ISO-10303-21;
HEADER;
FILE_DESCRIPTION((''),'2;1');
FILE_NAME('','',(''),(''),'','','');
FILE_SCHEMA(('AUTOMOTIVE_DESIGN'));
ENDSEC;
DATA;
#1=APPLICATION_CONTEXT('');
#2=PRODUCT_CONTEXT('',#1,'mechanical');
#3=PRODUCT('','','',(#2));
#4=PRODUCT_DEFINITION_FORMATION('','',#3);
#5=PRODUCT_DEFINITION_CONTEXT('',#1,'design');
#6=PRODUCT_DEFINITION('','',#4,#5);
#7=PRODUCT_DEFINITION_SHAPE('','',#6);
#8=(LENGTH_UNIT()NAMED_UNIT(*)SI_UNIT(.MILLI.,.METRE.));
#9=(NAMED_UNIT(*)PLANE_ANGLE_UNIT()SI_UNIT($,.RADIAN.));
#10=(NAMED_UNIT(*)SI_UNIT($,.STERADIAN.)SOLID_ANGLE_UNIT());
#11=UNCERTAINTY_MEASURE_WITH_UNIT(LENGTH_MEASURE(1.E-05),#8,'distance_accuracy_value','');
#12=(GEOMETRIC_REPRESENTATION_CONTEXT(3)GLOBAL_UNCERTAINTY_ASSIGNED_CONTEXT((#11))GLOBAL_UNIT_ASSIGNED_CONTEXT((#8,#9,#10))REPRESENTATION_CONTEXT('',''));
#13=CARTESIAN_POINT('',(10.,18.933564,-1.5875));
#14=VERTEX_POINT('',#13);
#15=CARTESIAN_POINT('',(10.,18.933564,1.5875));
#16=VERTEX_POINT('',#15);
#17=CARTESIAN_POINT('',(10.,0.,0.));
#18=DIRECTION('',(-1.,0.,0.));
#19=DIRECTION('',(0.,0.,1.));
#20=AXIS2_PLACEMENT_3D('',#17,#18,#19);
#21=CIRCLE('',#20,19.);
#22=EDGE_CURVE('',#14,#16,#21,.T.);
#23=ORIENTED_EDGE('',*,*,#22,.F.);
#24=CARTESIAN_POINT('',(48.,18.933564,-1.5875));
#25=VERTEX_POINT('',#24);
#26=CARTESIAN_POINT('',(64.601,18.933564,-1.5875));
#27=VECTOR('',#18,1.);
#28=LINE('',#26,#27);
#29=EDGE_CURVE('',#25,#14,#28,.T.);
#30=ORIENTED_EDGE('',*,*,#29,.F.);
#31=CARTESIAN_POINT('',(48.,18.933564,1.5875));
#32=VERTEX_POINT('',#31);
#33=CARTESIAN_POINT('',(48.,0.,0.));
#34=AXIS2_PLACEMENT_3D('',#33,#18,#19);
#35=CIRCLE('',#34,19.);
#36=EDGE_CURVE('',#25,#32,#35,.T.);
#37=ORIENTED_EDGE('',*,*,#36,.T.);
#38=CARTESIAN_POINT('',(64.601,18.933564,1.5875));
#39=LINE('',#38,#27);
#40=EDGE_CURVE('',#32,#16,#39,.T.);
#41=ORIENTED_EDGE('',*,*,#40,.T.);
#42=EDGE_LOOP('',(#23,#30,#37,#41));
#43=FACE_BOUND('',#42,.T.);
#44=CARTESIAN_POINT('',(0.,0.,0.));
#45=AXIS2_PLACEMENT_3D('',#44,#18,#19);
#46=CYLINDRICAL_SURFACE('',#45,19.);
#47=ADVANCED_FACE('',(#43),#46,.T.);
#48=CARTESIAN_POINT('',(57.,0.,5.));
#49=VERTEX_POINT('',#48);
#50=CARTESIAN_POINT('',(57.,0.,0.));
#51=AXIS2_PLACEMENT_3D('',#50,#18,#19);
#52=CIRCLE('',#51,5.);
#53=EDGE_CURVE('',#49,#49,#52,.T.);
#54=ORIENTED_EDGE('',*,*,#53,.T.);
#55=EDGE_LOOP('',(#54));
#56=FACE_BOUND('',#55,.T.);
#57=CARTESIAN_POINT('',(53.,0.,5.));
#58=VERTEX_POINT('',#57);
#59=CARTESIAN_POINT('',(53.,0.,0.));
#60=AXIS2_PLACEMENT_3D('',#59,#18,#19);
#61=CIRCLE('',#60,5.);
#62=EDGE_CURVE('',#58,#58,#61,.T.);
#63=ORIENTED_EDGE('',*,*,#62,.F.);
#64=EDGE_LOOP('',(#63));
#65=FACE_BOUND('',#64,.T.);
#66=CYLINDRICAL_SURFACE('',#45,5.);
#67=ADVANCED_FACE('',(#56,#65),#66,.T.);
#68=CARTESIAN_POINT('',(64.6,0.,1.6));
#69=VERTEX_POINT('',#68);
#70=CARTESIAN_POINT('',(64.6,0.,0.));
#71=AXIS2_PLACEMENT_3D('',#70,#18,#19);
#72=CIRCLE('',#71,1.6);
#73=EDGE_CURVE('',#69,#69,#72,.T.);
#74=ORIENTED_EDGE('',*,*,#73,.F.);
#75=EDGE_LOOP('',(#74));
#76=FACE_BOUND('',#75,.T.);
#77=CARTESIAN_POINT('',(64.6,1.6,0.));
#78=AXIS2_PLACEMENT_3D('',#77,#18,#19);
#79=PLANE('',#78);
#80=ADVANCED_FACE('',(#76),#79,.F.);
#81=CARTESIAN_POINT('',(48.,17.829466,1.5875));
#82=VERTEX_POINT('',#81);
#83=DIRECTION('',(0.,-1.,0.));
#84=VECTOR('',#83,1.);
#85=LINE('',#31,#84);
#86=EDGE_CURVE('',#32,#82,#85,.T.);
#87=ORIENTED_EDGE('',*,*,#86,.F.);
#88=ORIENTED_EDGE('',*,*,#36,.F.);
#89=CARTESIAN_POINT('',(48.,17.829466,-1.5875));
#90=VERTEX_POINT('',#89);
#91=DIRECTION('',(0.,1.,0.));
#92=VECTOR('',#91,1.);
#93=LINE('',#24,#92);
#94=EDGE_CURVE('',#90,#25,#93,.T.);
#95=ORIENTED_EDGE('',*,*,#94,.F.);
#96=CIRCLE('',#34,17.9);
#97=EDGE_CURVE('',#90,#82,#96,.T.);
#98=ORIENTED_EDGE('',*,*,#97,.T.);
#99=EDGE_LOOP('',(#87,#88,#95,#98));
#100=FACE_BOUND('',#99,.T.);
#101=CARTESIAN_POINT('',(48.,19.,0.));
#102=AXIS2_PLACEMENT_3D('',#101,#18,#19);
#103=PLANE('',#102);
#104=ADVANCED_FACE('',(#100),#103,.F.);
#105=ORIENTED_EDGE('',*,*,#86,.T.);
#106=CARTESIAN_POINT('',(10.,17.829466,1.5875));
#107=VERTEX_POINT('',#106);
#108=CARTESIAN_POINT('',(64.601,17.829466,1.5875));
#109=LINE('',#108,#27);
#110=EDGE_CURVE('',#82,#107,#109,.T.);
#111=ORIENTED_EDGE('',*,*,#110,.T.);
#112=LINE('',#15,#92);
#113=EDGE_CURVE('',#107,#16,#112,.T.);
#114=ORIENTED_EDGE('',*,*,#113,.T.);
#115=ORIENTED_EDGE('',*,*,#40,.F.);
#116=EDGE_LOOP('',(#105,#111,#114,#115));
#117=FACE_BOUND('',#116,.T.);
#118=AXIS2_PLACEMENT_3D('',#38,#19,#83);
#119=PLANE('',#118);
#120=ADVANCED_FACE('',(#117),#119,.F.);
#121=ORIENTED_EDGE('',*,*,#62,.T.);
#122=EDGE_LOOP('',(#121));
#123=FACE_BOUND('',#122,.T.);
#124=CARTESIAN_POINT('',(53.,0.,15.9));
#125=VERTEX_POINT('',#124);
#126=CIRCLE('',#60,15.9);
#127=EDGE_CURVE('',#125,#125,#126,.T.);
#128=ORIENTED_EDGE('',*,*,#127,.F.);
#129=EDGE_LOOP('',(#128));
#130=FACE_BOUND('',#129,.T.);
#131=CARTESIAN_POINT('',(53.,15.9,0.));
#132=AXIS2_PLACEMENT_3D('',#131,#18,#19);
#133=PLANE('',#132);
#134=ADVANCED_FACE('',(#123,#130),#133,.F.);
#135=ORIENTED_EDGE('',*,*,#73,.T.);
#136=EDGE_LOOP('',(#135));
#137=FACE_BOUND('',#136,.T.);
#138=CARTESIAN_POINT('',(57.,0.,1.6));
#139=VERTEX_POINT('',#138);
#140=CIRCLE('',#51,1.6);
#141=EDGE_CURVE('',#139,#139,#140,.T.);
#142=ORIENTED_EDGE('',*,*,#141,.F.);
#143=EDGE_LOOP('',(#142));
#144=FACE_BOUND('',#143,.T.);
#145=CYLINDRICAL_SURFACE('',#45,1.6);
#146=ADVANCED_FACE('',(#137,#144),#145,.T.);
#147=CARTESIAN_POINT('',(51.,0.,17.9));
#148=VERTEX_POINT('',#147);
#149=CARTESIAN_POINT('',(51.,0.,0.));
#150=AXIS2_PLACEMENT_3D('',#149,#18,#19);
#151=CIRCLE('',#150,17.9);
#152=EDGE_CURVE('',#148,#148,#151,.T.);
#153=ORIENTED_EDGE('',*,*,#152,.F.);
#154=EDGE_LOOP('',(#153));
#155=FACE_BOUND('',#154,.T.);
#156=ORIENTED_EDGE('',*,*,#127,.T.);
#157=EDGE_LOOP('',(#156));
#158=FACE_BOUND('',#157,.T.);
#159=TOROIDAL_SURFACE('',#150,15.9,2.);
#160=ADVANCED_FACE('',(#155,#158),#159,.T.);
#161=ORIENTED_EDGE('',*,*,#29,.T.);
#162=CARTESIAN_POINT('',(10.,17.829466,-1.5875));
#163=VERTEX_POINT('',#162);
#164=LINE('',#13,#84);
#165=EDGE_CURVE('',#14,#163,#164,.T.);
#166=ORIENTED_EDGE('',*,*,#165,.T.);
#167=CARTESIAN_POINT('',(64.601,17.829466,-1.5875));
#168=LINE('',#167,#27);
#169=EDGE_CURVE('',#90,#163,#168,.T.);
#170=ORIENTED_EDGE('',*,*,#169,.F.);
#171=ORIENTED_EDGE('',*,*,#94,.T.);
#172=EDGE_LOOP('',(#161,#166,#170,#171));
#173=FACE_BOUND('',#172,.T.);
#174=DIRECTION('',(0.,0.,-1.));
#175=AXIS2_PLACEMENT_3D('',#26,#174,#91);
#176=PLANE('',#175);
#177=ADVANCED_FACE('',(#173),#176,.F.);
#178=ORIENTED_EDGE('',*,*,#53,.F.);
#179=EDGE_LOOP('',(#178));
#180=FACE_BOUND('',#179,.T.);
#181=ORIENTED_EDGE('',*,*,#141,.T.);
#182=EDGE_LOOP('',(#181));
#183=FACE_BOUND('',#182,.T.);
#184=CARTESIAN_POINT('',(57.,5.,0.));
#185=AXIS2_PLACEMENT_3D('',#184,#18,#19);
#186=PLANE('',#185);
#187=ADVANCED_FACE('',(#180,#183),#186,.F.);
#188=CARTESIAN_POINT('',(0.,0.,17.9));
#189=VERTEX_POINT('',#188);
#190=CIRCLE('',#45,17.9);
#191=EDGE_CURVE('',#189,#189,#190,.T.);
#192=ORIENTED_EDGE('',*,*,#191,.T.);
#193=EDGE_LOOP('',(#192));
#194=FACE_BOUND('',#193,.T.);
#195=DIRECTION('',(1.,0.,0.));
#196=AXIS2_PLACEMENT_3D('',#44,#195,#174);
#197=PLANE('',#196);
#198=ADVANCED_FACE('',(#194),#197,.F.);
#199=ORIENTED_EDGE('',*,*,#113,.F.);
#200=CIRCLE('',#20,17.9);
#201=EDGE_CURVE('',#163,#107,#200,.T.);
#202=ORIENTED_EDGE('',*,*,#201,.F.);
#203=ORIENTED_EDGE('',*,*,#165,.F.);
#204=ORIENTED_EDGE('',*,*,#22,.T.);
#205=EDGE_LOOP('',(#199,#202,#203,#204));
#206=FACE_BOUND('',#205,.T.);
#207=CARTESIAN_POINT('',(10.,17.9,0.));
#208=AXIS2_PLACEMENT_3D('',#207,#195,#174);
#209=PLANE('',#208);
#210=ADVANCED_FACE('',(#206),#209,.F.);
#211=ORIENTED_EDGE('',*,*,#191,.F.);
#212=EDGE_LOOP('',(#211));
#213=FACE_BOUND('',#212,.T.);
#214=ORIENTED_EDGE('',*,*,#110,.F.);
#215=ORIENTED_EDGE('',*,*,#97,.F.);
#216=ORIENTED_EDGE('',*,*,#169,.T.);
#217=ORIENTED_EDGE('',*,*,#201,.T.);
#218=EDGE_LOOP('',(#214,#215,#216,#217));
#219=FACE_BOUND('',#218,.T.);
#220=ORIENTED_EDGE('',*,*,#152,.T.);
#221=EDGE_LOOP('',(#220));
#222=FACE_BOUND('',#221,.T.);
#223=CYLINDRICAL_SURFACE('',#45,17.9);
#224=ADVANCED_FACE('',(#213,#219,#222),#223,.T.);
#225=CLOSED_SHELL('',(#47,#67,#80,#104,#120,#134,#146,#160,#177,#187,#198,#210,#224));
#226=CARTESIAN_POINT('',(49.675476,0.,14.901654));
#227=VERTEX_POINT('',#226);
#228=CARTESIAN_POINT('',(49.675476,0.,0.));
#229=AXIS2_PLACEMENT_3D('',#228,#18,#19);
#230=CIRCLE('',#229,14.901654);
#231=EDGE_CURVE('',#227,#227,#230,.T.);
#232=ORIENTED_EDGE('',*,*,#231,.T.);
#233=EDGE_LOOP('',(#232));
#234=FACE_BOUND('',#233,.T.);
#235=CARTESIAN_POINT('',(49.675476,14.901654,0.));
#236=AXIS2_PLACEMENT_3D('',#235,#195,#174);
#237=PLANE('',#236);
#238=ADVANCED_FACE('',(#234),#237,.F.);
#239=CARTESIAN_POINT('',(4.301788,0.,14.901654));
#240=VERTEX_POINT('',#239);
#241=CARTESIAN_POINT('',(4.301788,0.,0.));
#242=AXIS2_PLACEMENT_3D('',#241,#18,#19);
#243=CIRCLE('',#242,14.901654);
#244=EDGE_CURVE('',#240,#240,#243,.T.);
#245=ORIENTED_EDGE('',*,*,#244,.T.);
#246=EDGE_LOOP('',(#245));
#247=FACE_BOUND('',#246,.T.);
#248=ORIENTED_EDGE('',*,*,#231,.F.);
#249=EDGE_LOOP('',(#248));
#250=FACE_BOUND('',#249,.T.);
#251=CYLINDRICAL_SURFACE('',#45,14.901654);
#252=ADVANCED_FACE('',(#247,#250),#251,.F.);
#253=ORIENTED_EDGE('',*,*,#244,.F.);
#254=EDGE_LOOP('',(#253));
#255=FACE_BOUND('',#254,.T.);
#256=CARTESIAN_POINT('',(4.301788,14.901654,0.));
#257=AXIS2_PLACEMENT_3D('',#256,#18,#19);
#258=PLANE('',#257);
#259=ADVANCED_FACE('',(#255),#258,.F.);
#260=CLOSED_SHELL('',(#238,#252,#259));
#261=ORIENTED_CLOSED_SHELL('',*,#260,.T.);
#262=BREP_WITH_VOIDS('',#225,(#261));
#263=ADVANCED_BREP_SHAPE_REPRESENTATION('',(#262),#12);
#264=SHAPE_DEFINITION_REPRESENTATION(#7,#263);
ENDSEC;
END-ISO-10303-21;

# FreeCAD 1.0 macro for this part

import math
import FreeCAD as App
import Part
import Sketcher
Q = App.Units.Quantity

doc = App.newDocument("Part")
params = doc.addObject("Spreadsheet::Sheet", "Params")
for row, (alias, value) in enumerate([
    ("sketch1_radius", "2 mm"),
    ("sketch1_width", "4 mm"),
    ("sketch1_width2", "3 mm"),
    ("sketch1_width3", "38 mm"),
    ("sketch1_width4", "10 mm"),
    ("revolution_angle", "360 deg"),
    ("sketch2_radius", "19 mm"),
    ("sketch2_radius2", "17.9 mm"),
], start=1):
    params.set(f"A{row}", alias)
    params.set(f"B{row}", "=" + value)
    params.setAlias(f"B{row}", alias)

body = doc.addObject("PartDesign::Body", "Body")

sketch1 = doc.addObject("Sketcher::SketchObject", "Sketch")
body.addObject(sketch1)
sketch1.AttachmentSupport = (doc.XY_Plane, [""])
sketch1.MapMode = "FlatFace"
sketch1.addGeometry([
    Part.LineSegment(App.Vector(0, 17.9, 0), App.Vector(0, 0, 0)),
    Part.LineSegment(App.Vector(0, 0, 0), App.Vector(4.3, 0, 0)),
    Part.LineSegment(App.Vector(4.3, 0, 0), App.Vector(4.3, 14.9, 0)),
    Part.LineSegment(App.Vector(4.3, 14.9, 0), App.Vector(49.7, 14.9, 0)),
    Part.LineSegment(App.Vector(49.7, 14.9, 0), App.Vector(49.7, 0, 0)),
    Part.LineSegment(App.Vector(49.7, 0, 0), App.Vector(64.6, 0, 0)),
    Part.LineSegment(App.Vector(64.6, 0, 0), App.Vector(64.6, 1.6, 0)),
    Part.LineSegment(App.Vector(64.6, 1.6, 0), App.Vector(57, 1.6, 0)),
    Part.LineSegment(App.Vector(57, 1.6, 0), App.Vector(57, 5, 0)),
    Part.LineSegment(App.Vector(57, 5, 0), App.Vector(53, 5, 0)),
    Part.LineSegment(App.Vector(53, 5, 0), App.Vector(53, 15.9, 0)),
    Part.ArcOfCircle(Part.Circle(App.Vector(51, 15.9, 0), App.Vector(0, 0, 1), 2), math.radians(0), math.radians(90)),
    Part.LineSegment(App.Vector(51, 17.9, 0), App.Vector(48, 17.9, 0)),
    Part.LineSegment(App.Vector(48, 17.9, 0), App.Vector(48, 19, 0)),
    Part.LineSegment(App.Vector(48, 19, 0), App.Vector(10, 19, 0)),
    Part.LineSegment(App.Vector(10, 19, 0), App.Vector(10, 17.9, 0)),
    Part.LineSegment(App.Vector(10, 17.9, 0), App.Vector(0, 17.9, 0)),
], False)
sketch1.addConstraint([
    Sketcher.Constraint("Coincident", 0, 2, 1, 1),
    Sketcher.Constraint("Coincident", 1, 2, 2, 1),
    Sketcher.Constraint("Coincident", 2, 2, 3, 1),
    Sketcher.Constraint("Coincident", 3, 2, 4, 1),
    Sketcher.Constraint("Coincident", 4, 2, 5, 1),
    Sketcher.Constraint("Coincident", 5, 2, 6, 1),
    Sketcher.Constraint("Coincident", 6, 2, 7, 1),
    Sketcher.Constraint("Coincident", 7, 2, 8, 1),
    Sketcher.Constraint("Coincident", 8, 2, 9, 1),
    Sketcher.Constraint("Coincident", 9, 2, 10, 1),
    Sketcher.Constraint("Tangent", 10, 2, 11, 1),
    Sketcher.Constraint("Tangent", 11, 2, 12, 1),
    Sketcher.Constraint("Coincident", 12, 2, 13, 1),
    Sketcher.Constraint("Coincident", 13, 2, 14, 1),
    Sketcher.Constraint("Coincident", 14, 2, 15, 1),
    Sketcher.Constraint("Coincident", 15, 2, 16, 1),
    Sketcher.Constraint("Coincident", 16, 2, 0, 1),
    Sketcher.Constraint("Vertical", 0),
    Sketcher.Constraint("Horizontal", 1),
    Sketcher.Constraint("Vertical", 2),
    Sketcher.Constraint("Horizontal", 3),
    Sketcher.Constraint("Vertical", 4),
    Sketcher.Constraint("Horizontal", 5),
    Sketcher.Constraint("Vertical", 6),
    Sketcher.Constraint("Horizontal", 7),
    Sketcher.Constraint("Vertical", 8),
    Sketcher.Constraint("Horizontal", 9),
    Sketcher.Constraint("Vertical", 10),
    Sketcher.Constraint("Horizontal", 12),
    Sketcher.Constraint("Vertical", 13),
    Sketcher.Constraint("Horizontal", 14),
    Sketcher.Constraint("Vertical", 15),
    Sketcher.Constraint("Horizontal", 16),
    Sketcher.Constraint("Coincident", 0, 2, -1, 1),
    Sketcher.Constraint("PointOnObject", 4, 2, -1),
    Sketcher.Constraint("Horizontal", 12, 2, 15, 2),
    Sketcher.Constraint("Radius", 11, Q("2 mm")),
    Sketcher.Constraint("DistanceX", 9, 2, 9, 1, Q("4 mm")),
    Sketcher.Constraint("DistanceX", 12, 2, 12, 1, Q("3 mm")),
    Sketcher.Constraint("DistanceX", 14, 2, 14, 1, Q("38 mm")),
    Sketcher.Constraint("DistanceX", 16, 2, 16, 1, Q("10 mm")),
    Sketcher.Constraint("DistanceX", 7, 2, 7, 1, Q("7.6 mm")),
    Sketcher.Constraint("DistanceY", 0, 2, 0, 1, Q("17.9 mm")),
    Sketcher.Constraint("DistanceY", 6, 1, 6, 2, Q("1.6 mm")),
    Sketcher.Constraint("DistanceY", 8, 1, 8, 2, Q("3.4 mm")),
    Sketcher.Constraint("DistanceY", 13, 1, 13, 2, Q("1.1 mm")),
    Sketcher.Constraint("DistanceX", 1, 1, 1, 2, Q("4.301788 mm")),
    Sketcher.Constraint("DistanceX", 3, 1, 3, 2, Q("45.373687 mm")),
    Sketcher.Constraint("DistanceY", 2, 1, 2, 2, Q("14.901654 mm")),
])
sketch1.setExpression("Constraints[36]", "Params.sketch1_radius")
sketch1.setExpression("Constraints[37]", "Params.sketch1_width")
sketch1.setExpression("Constraints[38]", "Params.sketch1_width2")
sketch1.setExpression("Constraints[39]", "Params.sketch1_width3")
sketch1.setExpression("Constraints[40]", "Params.sketch1_width4")
revolution = doc.addObject("PartDesign::Revolution", "Revolution")
body.addObject(revolution)
revolution.Profile = sketch1
revolution.ReferenceAxis = (sketch1, ["H_Axis"])
revolution.setExpression("Angle", "Params.revolution_angle")

sketch2 = doc.addObject("Sketcher::SketchObject", "Sketch001")
body.addObject(sketch2)
sketch2.AttachmentSupport = (doc.YZ_Plane, [""])
sketch2.MapMode = "FlatFace"
sketch2.AttachmentOffset = App.Placement(App.Vector(0, 0, 10), App.Rotation())
sketch2.addGeometry([
    Part.LineSegment(App.Vector(17.8, 1.6, 0), App.Vector(18.9, 1.6, 0)),
    Part.ArcOfCircle(Part.Circle(App.Vector(0, 0, 0), App.Vector(0, 0, 1), 19), math.radians(-4.79), math.radians(4.79)),
    Part.LineSegment(App.Vector(18.9, -1.6, 0), App.Vector(17.8, -1.6, 0)),
    Part.ArcOfCircle(Part.Circle(App.Vector(0, 0, 0), App.Vector(0, 0, 1), 17.9), math.radians(-5.09), math.radians(5.09)),
], False)
sketch2.addConstraint([
    Sketcher.Constraint("Coincident", 0, 2, 1, 2),
    Sketcher.Constraint("Coincident", 1, 1, 2, 1),
    Sketcher.Constraint("Coincident", 2, 2, 3, 1),
    Sketcher.Constraint("Coincident", 3, 2, 0, 1),
    Sketcher.Constraint("Horizontal", 0),
    Sketcher.Constraint("Horizontal", 2),
    Sketcher.Constraint("Coincident", 1, 3, -1, 1),
    Sketcher.Constraint("Coincident", 3, 3, -1, 1),
    Sketcher.Constraint("Vertical", 0, 2, 1, 1),
    Sketcher.Constraint("Radius", 1, Q("19 mm")),
    Sketcher.Constraint("Radius", 3, Q("17.9 mm")),
    Sketcher.Constraint("DistanceY", 1, 1, 0, 2, Q("3.175 mm")),
])
sketch2.setExpression("Constraints[9]", "Params.sketch2_radius")
sketch2.setExpression("Constraints[10]", "Params.sketch2_radius2")
pocket1 = doc.addObject("PartDesign::Pocket", "Pocket")
body.addObject(pocket1)
pocket1.Profile = sketch2
pocket1.Type = "UpToFirst"
pocket1.Reversed = True

doc.recompute()
